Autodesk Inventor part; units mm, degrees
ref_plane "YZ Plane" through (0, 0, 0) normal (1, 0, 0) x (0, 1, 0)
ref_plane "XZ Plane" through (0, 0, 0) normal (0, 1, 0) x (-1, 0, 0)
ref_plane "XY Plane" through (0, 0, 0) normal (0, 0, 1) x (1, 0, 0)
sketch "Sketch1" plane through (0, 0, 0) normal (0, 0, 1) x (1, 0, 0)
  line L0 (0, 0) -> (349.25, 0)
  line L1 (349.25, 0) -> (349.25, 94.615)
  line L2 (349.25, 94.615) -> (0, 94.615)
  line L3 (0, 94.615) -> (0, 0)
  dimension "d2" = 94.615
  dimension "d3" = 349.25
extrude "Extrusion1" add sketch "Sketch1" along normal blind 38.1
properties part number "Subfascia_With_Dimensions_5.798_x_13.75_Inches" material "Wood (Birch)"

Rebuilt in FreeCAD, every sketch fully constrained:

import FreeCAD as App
import Part
import Sketcher
from FreeCAD import Vector
Q = App.Units.Quantity

doc = App.newDocument("Part")
body = doc.addObject("PartDesign::Body", "Body")

# Sketch on XY plane
sketch1 = body.newObject("Sketcher::SketchObject", "Sketch")
sketch1.AttachmentSupport = (doc.getObject("XY_Plane"), [""])
sketch1.MapMode = "FlatFace"
sketch1.addGeometry(Part.LineSegment(Vector(0, 95, 0), Vector(0, 0, 0)), False)
sketch1.addGeometry(Part.LineSegment(Vector(0, 0, 0), Vector(349, 0, 0)), False)
sketch1.addGeometry(Part.LineSegment(Vector(349, 0, 0), Vector(349, 95, 0)), False)
sketch1.addGeometry(Part.LineSegment(Vector(349, 95, 0), Vector(0, 95, 0)), False)
sketch1.addConstraint(Sketcher.Constraint("Coincident", 0, 2, 1, 1))
sketch1.addConstraint(Sketcher.Constraint("Coincident", 1, 2, 2, 1))
sketch1.addConstraint(Sketcher.Constraint("Coincident", 2, 2, 3, 1))
sketch1.addConstraint(Sketcher.Constraint("Coincident", 3, 2, 0, 1))
sketch1.addConstraint(Sketcher.Constraint("Vertical", 0))
sketch1.addConstraint(Sketcher.Constraint("Horizontal", 1))
sketch1.addConstraint(Sketcher.Constraint("Vertical", 2))
sketch1.addConstraint(Sketcher.Constraint("Horizontal", 3))
sketch1.addConstraint(Sketcher.Constraint("Coincident", 0, 2, -1, 1))
sketch1.addConstraint(Sketcher.Constraint("DistanceX", 1, 1, 1, 2, Q("13.75 in")))
sketch1.addConstraint(Sketcher.Constraint("DistanceY", 0, 2, 0, 1, Q("3.725 in")))
pad1 = body.newObject("PartDesign::Pad", "Pad")
pad1.Profile = sketch1
pad1.Length = Q("1.5 in")

doc.recompute()
